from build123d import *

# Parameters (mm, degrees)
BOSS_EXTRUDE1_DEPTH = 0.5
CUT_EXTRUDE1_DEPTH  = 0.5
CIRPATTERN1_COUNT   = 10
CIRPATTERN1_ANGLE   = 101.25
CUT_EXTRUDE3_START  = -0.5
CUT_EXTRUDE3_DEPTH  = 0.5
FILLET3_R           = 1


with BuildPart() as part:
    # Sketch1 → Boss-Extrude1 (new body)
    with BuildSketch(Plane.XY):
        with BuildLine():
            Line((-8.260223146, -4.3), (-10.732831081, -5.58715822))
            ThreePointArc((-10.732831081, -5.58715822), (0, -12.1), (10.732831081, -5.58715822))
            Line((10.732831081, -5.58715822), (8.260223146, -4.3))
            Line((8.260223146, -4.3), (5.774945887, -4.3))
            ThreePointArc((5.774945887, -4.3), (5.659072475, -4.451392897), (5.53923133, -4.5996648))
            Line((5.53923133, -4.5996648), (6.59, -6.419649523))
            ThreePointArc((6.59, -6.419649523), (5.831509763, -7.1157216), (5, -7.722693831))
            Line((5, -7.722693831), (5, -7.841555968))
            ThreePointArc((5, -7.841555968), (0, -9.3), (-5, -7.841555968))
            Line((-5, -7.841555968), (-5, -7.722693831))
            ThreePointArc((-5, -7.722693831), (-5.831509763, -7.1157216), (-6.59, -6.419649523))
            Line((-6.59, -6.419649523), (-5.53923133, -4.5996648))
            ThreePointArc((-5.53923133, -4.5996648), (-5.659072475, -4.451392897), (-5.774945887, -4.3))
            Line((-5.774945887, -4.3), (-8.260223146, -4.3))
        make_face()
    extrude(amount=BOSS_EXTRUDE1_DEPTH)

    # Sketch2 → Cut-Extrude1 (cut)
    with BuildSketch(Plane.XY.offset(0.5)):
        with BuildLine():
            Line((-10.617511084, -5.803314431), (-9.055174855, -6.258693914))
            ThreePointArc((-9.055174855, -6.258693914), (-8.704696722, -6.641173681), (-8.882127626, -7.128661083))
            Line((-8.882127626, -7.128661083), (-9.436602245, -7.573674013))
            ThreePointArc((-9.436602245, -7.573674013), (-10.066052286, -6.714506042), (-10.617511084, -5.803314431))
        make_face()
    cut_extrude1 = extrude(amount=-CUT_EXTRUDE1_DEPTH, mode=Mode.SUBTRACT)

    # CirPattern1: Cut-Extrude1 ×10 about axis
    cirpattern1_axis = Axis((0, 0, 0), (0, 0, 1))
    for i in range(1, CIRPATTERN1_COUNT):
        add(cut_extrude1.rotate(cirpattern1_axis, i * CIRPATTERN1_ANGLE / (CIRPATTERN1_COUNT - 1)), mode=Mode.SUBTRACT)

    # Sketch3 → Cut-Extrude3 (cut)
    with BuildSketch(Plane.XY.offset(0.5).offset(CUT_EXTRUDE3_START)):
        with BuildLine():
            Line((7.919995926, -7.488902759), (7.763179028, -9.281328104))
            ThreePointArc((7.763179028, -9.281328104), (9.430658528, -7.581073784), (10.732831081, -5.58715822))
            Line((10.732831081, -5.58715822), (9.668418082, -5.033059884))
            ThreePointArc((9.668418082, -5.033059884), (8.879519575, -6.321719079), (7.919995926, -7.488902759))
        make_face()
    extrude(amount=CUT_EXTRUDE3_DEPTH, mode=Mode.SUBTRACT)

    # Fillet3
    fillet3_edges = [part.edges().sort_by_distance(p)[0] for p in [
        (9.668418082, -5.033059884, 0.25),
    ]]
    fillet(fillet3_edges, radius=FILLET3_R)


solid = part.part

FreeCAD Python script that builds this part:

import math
import FreeCAD as App
import Part
import Sketcher
Q = App.Units.Quantity


def edges_at(feature, points):
    """Names of the edges that pass closest to the given points."""
    edges = feature.Shape.Edges
    near = lambda p: min(range(len(edges)), key=lambda i: edges[i].distToShape(Part.Vertex(*p))[0])
    return sorted({f"Edge{near(p) + 1}" for p in points})

doc = App.newDocument("Part")
body = doc.addObject("PartDesign::Body", "Body")

sketch1 = body.newObject("Sketcher::SketchObject", "Sketch")
sketch1.AttachmentSupport = (doc.getObject("XY_Plane"), [""])
sketch1.MapMode = "FlatFace"
sketch1.addGeometry([
    Part.LineSegment(App.Vector(-8.260223, -4.3, 0), App.Vector(-10.732831, -5.587158, 0)),
    Part.ArcOfCircle(Part.Circle(App.Vector(0, 0, 0), App.Vector(0, 0, 1), 12.1), math.radians(-152.5), math.radians(-27.5)),
    Part.LineSegment(App.Vector(10.732831, -5.587158, 0), App.Vector(8.260223, -4.3, 0)),
    Part.LineSegment(App.Vector(8.260223, -4.3, 0), App.Vector(5.774946, -4.3, 0)),
    Part.ArcOfCircle(Part.Circle(App.Vector(0, 0, 0), App.Vector(0, 0, 1), 7.2), math.radians(-39.705549), math.radians(-36.671212)),
    Part.LineSegment(App.Vector(5.539231, -4.599665, 0), App.Vector(6.59, -6.41965, 0)),
    Part.ArcOfCircle(Part.Circle(App.Vector(0, 0, 0), App.Vector(0, 0, 1), 9.2), math.radians(-57.079265), math.radians(-44.249803)),
    Part.LineSegment(App.Vector(5, -7.722694, 0), App.Vector(5, -7.841556, 0)),
    Part.ArcOfCircle(Part.Circle(App.Vector(0, 0, 0), App.Vector(0, 0, 1), 9.3), math.radians(-122.522748), math.radians(-57.477252)),
    Part.LineSegment(App.Vector(-5, -7.841556, 0), App.Vector(-5, -7.722694, 0)),
    Part.ArcOfCircle(Part.Circle(App.Vector(0, 0, 0), App.Vector(0, 0, 1), 9.2), math.radians(-135.750197), math.radians(-122.920735)),
    Part.LineSegment(App.Vector(-6.59, -6.41965, 0), App.Vector(-5.539231, -4.599665, 0)),
    Part.ArcOfCircle(Part.Circle(App.Vector(0, 0, 0), App.Vector(0, 0, 1), 7.2), math.radians(-143.328788), math.radians(-140.294451)),
    Part.LineSegment(App.Vector(-5.774946, -4.3, 0), App.Vector(-8.260223, -4.3, 0)),
], False)
sketch1.addConstraint([
    Sketcher.Constraint("Coincident", 0, 2, 1, 1),
    Sketcher.Constraint("Coincident", 1, 2, 2, 1),
    Sketcher.Constraint("Coincident", 2, 2, 3, 1),
    Sketcher.Constraint("Coincident", 3, 2, 4, 2),
    Sketcher.Constraint("Coincident", 4, 1, 5, 1),
    Sketcher.Constraint("Coincident", 5, 2, 6, 2),
    Sketcher.Constraint("Coincident", 6, 1, 7, 1),
    Sketcher.Constraint("Coincident", 7, 2, 8, 2),
    Sketcher.Constraint("Coincident", 8, 1, 9, 1),
    Sketcher.Constraint("Coincident", 9, 2, 10, 2),
    Sketcher.Constraint("Coincident", 10, 1, 11, 1),
    Sketcher.Constraint("Coincident", 11, 2, 12, 2),
    Sketcher.Constraint("Coincident", 12, 1, 13, 1),
    Sketcher.Constraint("Coincident", 13, 2, 0, 1),
    Sketcher.Constraint("Horizontal", 3),
    Sketcher.Constraint("Vertical", 7),
    Sketcher.Constraint("Vertical", 9),
    Sketcher.Constraint("Horizontal", 13),
    Sketcher.Constraint("Coincident", 1, 3, -1, 1),
    Sketcher.Constraint("Coincident", 4, 3, -1, 1),
    Sketcher.Constraint("Coincident", 6, 3, -1, 1),
    Sketcher.Constraint("Coincident", 8, 3, -1, 1),
    Sketcher.Constraint("Coincident", 10, 3, -1, 1),
    Sketcher.Constraint("Coincident", 12, 3, -1, 1),
    Sketcher.Constraint("Equal", 6, 10),
    Sketcher.Constraint("Equal", 4, 12),
    Sketcher.Constraint("Symmetric", 2, 2, 13, 2, -2),
    Sketcher.Constraint("Horizontal", 0, 2, 1, 2),
    Sketcher.Constraint("Horizontal", 7, 2, 8, 1),
    Sketcher.Constraint("Horizontal", 5, 2, 10, 1),
    Sketcher.Constraint("Horizontal", 4, 1, 11, 2),
    Sketcher.Constraint("Radius", 1, Q("12.1 mm")),
    Sketcher.Constraint("Radius", 4, Q("7.2 mm")),
    Sketcher.Constraint("Radius", 6, Q("9.2 mm")),
    Sketcher.Constraint("Radius", 8, Q("9.3 mm")),
    Sketcher.Constraint("Angle", 5, Q("-60 deg")),
    Sketcher.Constraint("DistanceX", -1, 1, 6, 1, Q("5 mm")),
    Sketcher.Constraint("Angle", 0, Q("-152.5 deg")),
    Sketcher.Constraint("DistanceY", 2, 2, -1, 1, Q("4.3 mm")),
    Sketcher.Constraint("DistanceX", -1, 1, 5, 2, Q("6.59 mm")),
    Sketcher.Constraint("DistanceX", 4, 1, 1, 2, Q("5.1936 mm")),
])
pad1 = body.newObject("PartDesign::Pad", "Pad")
pad1.Profile = sketch1
pad1.Length = 0.5

sketch2 = body.newObject("Sketcher::SketchObject", "Sketch001")
sketch2.AttachmentSupport = (doc.getObject("XY_Plane"), [""])
sketch2.MapMode = "FlatFace"
sketch2.AttachmentOffset = App.Placement(App.Vector(0, 0, 0.5), App.Rotation())
sketch2.addGeometry([
    Part.LineSegment(App.Vector(-9.055175, -6.258694, 0), App.Vector(-10.617511, -5.803314, 0)),
    Part.ArcOfCircle(Part.Circle(App.Vector(0, 0, 0), App.Vector(0, 0, 1), 12.1), math.radians(-151.339886), math.radians(-141.25)),
    Part.LineSegment(App.Vector(-9.436602, -7.573674, 0), App.Vector(-8.882128, -7.128661, 0)),
    Part.ArcOfCircle(Part.Circle(App.Vector(-9.195089, -6.738719, 0), App.Vector(0, 0, 1), 0.5), math.radians(-51.25), math.radians(73.75)),
], False)
sketch2.addConstraint([
    Sketcher.Constraint("Coincident", 0, 2, 1, 1),
    Sketcher.Constraint("Coincident", 1, 2, 2, 1),
    Sketcher.Constraint("Tangent", 2, 2, 3, 1),
    Sketcher.Constraint("Tangent", 3, 2, 0, 1),
    Sketcher.Constraint("Coincident", 1, 3, -1, 1),
    Sketcher.Constraint("Radius", 1, Q("12.1 mm")),
    Sketcher.Constraint("Radius", 3, Q("0.5 mm")),
    Sketcher.Constraint("Angle", 0, Q("163.75 deg")),
    Sketcher.Constraint("Angle", 2, Q("38.75 deg")),
    Sketcher.Constraint("Distance", 0, Q("1.627349 mm")),
    Sketcher.Constraint("Distance", 2, Q("0.71097 mm")),
])
pocket1 = body.newObject("PartDesign::Pocket", "Pocket")
pocket1.Profile = sketch2
pocket1.Length = 0.5
doc.recompute()

polarpattern = body.newObject("PartDesign::PolarPattern", "PolarPattern")
polarpattern.Originals = [pocket1]
polarpattern.Axis = (doc.getObject("Z_Axis"), [""])
polarpattern.Angle = 101.25
polarpattern.Occurrences = 10
body.Tip = polarpattern

sketch3 = body.newObject("Sketcher::SketchObject", "Sketch002")
sketch3.AttachmentSupport = (doc.getObject("XY_Plane"), [""])
sketch3.MapMode = "FlatFace"
sketch3.addGeometry([
    Part.LineSegment(App.Vector(7.919996, -7.488903, 0), App.Vector(7.763179, -9.281328, 0)),
    Part.ArcOfCircle(Part.Circle(App.Vector(0, 0, 0), App.Vector(0, 0, 1), 12.1), math.radians(-50.089886), math.radians(-27.5)),
    Part.LineSegment(App.Vector(10.732831, -5.587158, 0), App.Vector(9.668418, -5.03306, 0)),
    Part.ArcOfCircle(Part.Circle(App.Vector(0, 0, 0), App.Vector(0, 0, 1), 10.9), math.radians(-43.39746), math.radians(-27.5)),
], False)
sketch3.addConstraint([
    Sketcher.Constraint("Coincident", 0, 2, 1, 1),
    Sketcher.Constraint("Coincident", 1, 2, 2, 1),
    Sketcher.Constraint("Coincident", 2, 2, 3, 2),
    Sketcher.Constraint("Coincident", 3, 1, 0, 1),
    Sketcher.Constraint("Coincident", 1, 3, -1, 1),
    Sketcher.Constraint("Coincident", 3, 3, -1, 1),
    Sketcher.Constraint("Radius", 1, Q("12.1 mm")),
    Sketcher.Constraint("Radius", 3, Q("10.9 mm")),
    Sketcher.Constraint("Angle", 0, Q("-95 deg")),
    Sketcher.Constraint("Angle", 2, Q("152.5 deg")),
    Sketcher.Constraint("DistanceX", -1, 1, 0, 2, Q("7.763179 mm")),
    Sketcher.Constraint("DistanceX", -1, 1, 1, 2, Q("10.732831 mm")),
])
pocket2 = body.newObject("PartDesign::Pocket", "Pocket001")
pocket2.Profile = sketch3
pocket2.Length = 0.5
pocket2.Reversed = True
doc.recompute()

fillet = body.newObject("PartDesign::Fillet", "Fillet")
fillet.Base = (pocket2, edges_at(pocket2, [(9.668, -5.033, 0.25)]))
fillet.Radius = 1

doc.recompute()
